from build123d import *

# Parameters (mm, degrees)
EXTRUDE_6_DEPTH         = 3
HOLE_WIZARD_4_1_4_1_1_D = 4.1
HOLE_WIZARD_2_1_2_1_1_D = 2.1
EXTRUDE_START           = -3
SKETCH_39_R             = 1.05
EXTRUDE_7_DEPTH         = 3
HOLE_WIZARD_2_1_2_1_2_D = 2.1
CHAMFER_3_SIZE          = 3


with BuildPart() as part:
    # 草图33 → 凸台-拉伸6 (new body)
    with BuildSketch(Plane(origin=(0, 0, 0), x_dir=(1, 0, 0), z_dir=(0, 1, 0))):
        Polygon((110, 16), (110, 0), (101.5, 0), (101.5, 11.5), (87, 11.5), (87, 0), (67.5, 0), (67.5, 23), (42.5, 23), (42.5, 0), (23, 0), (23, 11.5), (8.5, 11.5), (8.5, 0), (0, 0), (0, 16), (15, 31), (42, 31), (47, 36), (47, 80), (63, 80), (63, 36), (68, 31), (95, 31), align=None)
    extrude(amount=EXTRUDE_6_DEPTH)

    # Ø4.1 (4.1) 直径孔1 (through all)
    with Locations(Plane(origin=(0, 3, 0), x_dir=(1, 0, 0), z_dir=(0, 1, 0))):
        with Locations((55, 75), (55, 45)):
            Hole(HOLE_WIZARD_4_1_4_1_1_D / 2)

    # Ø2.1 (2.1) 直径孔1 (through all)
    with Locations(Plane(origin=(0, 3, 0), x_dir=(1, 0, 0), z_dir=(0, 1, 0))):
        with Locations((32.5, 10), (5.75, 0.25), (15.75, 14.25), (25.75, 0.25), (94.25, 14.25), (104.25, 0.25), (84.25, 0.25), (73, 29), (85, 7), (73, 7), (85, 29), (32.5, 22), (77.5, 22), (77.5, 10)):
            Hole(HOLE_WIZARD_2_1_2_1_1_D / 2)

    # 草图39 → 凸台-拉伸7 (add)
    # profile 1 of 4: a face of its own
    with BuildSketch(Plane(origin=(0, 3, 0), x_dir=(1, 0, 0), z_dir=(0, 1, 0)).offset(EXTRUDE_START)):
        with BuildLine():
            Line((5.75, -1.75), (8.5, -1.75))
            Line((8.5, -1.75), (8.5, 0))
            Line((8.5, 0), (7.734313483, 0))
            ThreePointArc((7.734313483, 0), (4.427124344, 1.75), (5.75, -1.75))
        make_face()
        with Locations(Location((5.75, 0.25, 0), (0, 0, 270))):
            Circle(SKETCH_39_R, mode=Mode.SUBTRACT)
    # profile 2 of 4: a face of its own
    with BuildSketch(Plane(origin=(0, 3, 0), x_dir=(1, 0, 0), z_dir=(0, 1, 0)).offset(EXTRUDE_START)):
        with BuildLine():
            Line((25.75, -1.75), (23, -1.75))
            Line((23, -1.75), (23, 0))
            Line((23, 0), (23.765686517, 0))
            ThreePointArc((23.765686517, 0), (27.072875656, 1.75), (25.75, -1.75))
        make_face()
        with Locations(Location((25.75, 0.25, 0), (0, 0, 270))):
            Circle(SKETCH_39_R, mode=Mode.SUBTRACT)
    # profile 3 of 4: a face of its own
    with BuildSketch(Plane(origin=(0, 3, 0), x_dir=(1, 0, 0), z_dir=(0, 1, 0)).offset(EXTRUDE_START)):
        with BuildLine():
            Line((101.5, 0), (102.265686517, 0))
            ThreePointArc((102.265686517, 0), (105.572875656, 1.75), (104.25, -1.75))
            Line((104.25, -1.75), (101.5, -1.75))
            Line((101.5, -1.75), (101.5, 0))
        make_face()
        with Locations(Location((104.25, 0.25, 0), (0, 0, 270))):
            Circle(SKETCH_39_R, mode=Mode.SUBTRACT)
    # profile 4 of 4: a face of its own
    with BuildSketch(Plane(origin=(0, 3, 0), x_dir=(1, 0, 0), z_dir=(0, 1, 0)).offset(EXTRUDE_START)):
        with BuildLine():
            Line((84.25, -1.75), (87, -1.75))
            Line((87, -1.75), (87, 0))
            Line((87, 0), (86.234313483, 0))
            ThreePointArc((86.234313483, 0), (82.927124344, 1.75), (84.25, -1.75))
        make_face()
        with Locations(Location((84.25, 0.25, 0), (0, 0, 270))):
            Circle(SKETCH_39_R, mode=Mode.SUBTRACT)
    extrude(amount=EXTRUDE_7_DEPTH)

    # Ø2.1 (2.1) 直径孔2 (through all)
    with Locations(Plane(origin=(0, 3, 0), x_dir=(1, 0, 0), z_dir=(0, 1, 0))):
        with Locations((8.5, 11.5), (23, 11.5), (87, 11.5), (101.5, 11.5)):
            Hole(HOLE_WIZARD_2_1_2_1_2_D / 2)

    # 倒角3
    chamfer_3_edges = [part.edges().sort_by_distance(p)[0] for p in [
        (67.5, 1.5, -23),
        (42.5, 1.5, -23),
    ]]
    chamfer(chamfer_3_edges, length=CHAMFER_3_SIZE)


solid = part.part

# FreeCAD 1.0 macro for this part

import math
import FreeCAD as App
import Part
import Sketcher


def edges_at(feature, points):
    """Names of the edges that pass closest to the given points."""
    edges = feature.Shape.Edges
    near = lambda p: min(range(len(edges)), key=lambda i: edges[i].distToShape(Part.Vertex(*p))[0])
    return sorted({f"Edge{near(p) + 1}" for p in points})

doc = App.newDocument("Part")
body = doc.addObject("PartDesign::Body", "Body")

# Sketch on XZ plane
sketch1 = body.newObject("Sketcher::SketchObject", "Sketch")
sketch1.AttachmentSupport = (doc.getObject("XZ_Plane"), [""])
sketch1.MapMode = "FlatFace"
sketch1.addGeometry(Part.LineSegment(App.Vector(110, 0, 0), App.Vector(110, -16, 0)), False)
sketch1.addGeometry(Part.LineSegment(App.Vector(110, -16, 0), App.Vector(95, -31, 0)), False)
sketch1.addGeometry(Part.LineSegment(App.Vector(95, -31, 0), App.Vector(68, -31, 0)), False)
sketch1.addGeometry(Part.LineSegment(App.Vector(68, -31, 0), App.Vector(63, -36, 0)), False)
sketch1.addGeometry(Part.LineSegment(App.Vector(63, -36, 0), App.Vector(63, -80, 0)), False)
sketch1.addGeometry(Part.LineSegment(App.Vector(63, -80, 0), App.Vector(47, -80, 0)), False)
sketch1.addGeometry(Part.LineSegment(App.Vector(47, -80, 0), App.Vector(47, -36, 0)), False)
sketch1.addGeometry(Part.LineSegment(App.Vector(47, -36, 0), App.Vector(42, -31, 0)), False)
sketch1.addGeometry(Part.LineSegment(App.Vector(42, -31, 0), App.Vector(15, -31, 0)), False)
sketch1.addGeometry(Part.LineSegment(App.Vector(15, -31, 0), App.Vector(0, -16, 0)), False)
sketch1.addGeometry(Part.LineSegment(App.Vector(0, -16, 0), App.Vector(0, 0, 0)), False)
sketch1.addGeometry(Part.LineSegment(App.Vector(0, 0, 0), App.Vector(8.5, 0, 0)), False)
sketch1.addGeometry(Part.LineSegment(App.Vector(8.5, 0, 0), App.Vector(8.5, -11.5, 0)), False)
sketch1.addGeometry(Part.LineSegment(App.Vector(8.5, -11.5, 0), App.Vector(23, -11.5, 0)), False)
sketch1.addGeometry(Part.LineSegment(App.Vector(23, -11.5, 0), App.Vector(23, 0, 0)), False)
sketch1.addGeometry(Part.LineSegment(App.Vector(23, 0, 0), App.Vector(42.5, 0, 0)), False)
sketch1.addGeometry(Part.LineSegment(App.Vector(42.5, 0, 0), App.Vector(42.5, -23, 0)), False)
sketch1.addGeometry(Part.LineSegment(App.Vector(42.5, -23, 0), App.Vector(67.5, -23, 0)), False)
sketch1.addGeometry(Part.LineSegment(App.Vector(67.5, -23, 0), App.Vector(67.5, 0, 0)), False)
sketch1.addGeometry(Part.LineSegment(App.Vector(67.5, 0, 0), App.Vector(87, 0, 0)), False)
sketch1.addGeometry(Part.LineSegment(App.Vector(87, 0, 0), App.Vector(87, -11.5, 0)), False)
sketch1.addGeometry(Part.LineSegment(App.Vector(87, -11.5, 0), App.Vector(101.5, -11.5, 0)), False)
sketch1.addGeometry(Part.LineSegment(App.Vector(101.5, -11.5, 0), App.Vector(101.5, 0, 0)), False)
sketch1.addGeometry(Part.LineSegment(App.Vector(101.5, 0, 0), App.Vector(110, 0, 0)), False)
sketch1.addConstraint(Sketcher.Constraint("Coincident", 0, 2, 1, 1))
sketch1.addConstraint(Sketcher.Constraint("Coincident", 1, 2, 2, 1))
sketch1.addConstraint(Sketcher.Constraint("Coincident", 2, 2, 3, 1))
sketch1.addConstraint(Sketcher.Constraint("Coincident", 3, 2, 4, 1))
sketch1.addConstraint(Sketcher.Constraint("Coincident", 4, 2, 5, 1))
sketch1.addConstraint(Sketcher.Constraint("Coincident", 5, 2, 6, 1))
sketch1.addConstraint(Sketcher.Constraint("Coincident", 6, 2, 7, 1))
sketch1.addConstraint(Sketcher.Constraint("Coincident", 7, 2, 8, 1))
sketch1.addConstraint(Sketcher.Constraint("Coincident", 8, 2, 9, 1))
sketch1.addConstraint(Sketcher.Constraint("Coincident", 9, 2, 10, 1))
sketch1.addConstraint(Sketcher.Constraint("Coincident", 10, 2, 11, 1))
sketch1.addConstraint(Sketcher.Constraint("Coincident", 11, 2, 12, 1))
sketch1.addConstraint(Sketcher.Constraint("Coincident", 12, 2, 13, 1))
sketch1.addConstraint(Sketcher.Constraint("Coincident", 13, 2, 14, 1))
sketch1.addConstraint(Sketcher.Constraint("Coincident", 14, 2, 15, 1))
sketch1.addConstraint(Sketcher.Constraint("Coincident", 15, 2, 16, 1))
sketch1.addConstraint(Sketcher.Constraint("Coincident", 16, 2, 17, 1))
sketch1.addConstraint(Sketcher.Constraint("Coincident", 17, 2, 18, 1))
sketch1.addConstraint(Sketcher.Constraint("Coincident", 18, 2, 19, 1))
sketch1.addConstraint(Sketcher.Constraint("Coincident", 19, 2, 20, 1))
sketch1.addConstraint(Sketcher.Constraint("Coincident", 20, 2, 21, 1))
sketch1.addConstraint(Sketcher.Constraint("Coincident", 21, 2, 22, 1))
sketch1.addConstraint(Sketcher.Constraint("Coincident", 22, 2, 23, 1))
sketch1.addConstraint(Sketcher.Constraint("Coincident", 23, 2, 0, 1))
sketch1.addConstraint(Sketcher.Constraint("Vertical", 0))
sketch1.addConstraint(Sketcher.Constraint("Horizontal", 2))
sketch1.addConstraint(Sketcher.Constraint("Vertical", 4))
sketch1.addConstraint(Sketcher.Constraint("Horizontal", 5))
sketch1.addConstraint(Sketcher.Constraint("Vertical", 6))
sketch1.addConstraint(Sketcher.Constraint("Horizontal", 8))
sketch1.addConstraint(Sketcher.Constraint("Vertical", 10))
sketch1.addConstraint(Sketcher.Constraint("Horizontal", 11))
sketch1.addConstraint(Sketcher.Constraint("Vertical", 12))
sketch1.addConstraint(Sketcher.Constraint("Horizontal", 13))
sketch1.addConstraint(Sketcher.Constraint("Vertical", 14))
sketch1.addConstraint(Sketcher.Constraint("Horizontal", 15))
sketch1.addConstraint(Sketcher.Constraint("Vertical", 16))
sketch1.addConstraint(Sketcher.Constraint("Horizontal", 17))
sketch1.addConstraint(Sketcher.Constraint("Vertical", 18))
sketch1.addConstraint(Sketcher.Constraint("Horizontal", 19))
sketch1.addConstraint(Sketcher.Constraint("Vertical", 20))
sketch1.addConstraint(Sketcher.Constraint("Horizontal", 21))
sketch1.addConstraint(Sketcher.Constraint("Vertical", 22))
sketch1.addConstraint(Sketcher.Constraint("Horizontal", 23))
sketch1.addConstraint(Sketcher.Constraint("Coincident", 10, 2, -1, 1))
sketch1.addConstraint(Sketcher.Constraint("PointOnObject", 14, 2, -1))
sketch1.addConstraint(Sketcher.Constraint("PointOnObject", 18, 2, -1))
sketch1.addConstraint(Sketcher.Constraint("PointOnObject", 22, 2, -1))
sketch1.addConstraint(Sketcher.Constraint("Parallel", 1, 3))
sketch1.addConstraint(Sketcher.Constraint("Perpendicular", 3, 7))
sketch1.addConstraint(Sketcher.Constraint("Parallel", 7, 9))
sketch1.addConstraint(Sketcher.Constraint("Horizontal", 3, 2, 6, 2))
sketch1.addConstraint(Sketcher.Constraint("Horizontal", 2, 2, 7, 2))
sketch1.addConstraint(Sketcher.Constraint("Horizontal", 0, 2, 9, 2))
sketch1.addConstraint(Sketcher.Constraint("Horizontal", 13, 2, 20, 2))
sketch1.addConstraint(Sketcher.Constraint("Equal", 2, 8))
sketch1.addConstraint(Sketcher.Constraint("Equal", 15, 19))
sketch1.addConstraint(Sketcher.Constraint("Equal", 13, 21))
sketch1.addConstraint(Sketcher.Constraint("Equal", 11, 23))
sketch1.addConstraint(Sketcher.Constraint("Equal", 5, 0))
sketch1.addConstraint(Sketcher.Constraint("Equal", 3, 7))
sketch1.addConstraint(Sketcher.Constraint("DistanceX", 2, 2, 2, 1, 27.0))
sketch1.addConstraint(Sketcher.Constraint("DistanceX", 5, 2, 5, 1, 16.0))
sketch1.addConstraint(Sketcher.Constraint("DistanceX", 17, 1, 17, 2, 25.0))
sketch1.addConstraint(Sketcher.Constraint("DistanceY", 4, 2, 4, 1, 44.0))
sketch1.addConstraint(Sketcher.Constraint("DistanceY", 16, 2, 16, 1, 23.0))
sketch1.addConstraint(Sketcher.Constraint("DistanceX", 11, 1, 11, 2, 8.5))
sketch1.addConstraint(Sketcher.Constraint("DistanceX", 13, 1, 13, 2, 14.5))
sketch1.addConstraint(Sketcher.Constraint("DistanceX", 15, 1, 15, 2, 19.5))
sketch1.addConstraint(Sketcher.Constraint("DistanceY", 12, 2, 12, 1, 11.5))
sketch1.addConstraint(Sketcher.Constraint("DistanceX", -1, 1, 1, 2, 95.0))
pad1 = body.newObject("PartDesign::Pad", "Pad")
pad1.Profile = sketch1
pad1.Length = 3
pad1.Reversed = True

# Sketch on XZ plane
sketch2 = body.newObject("Sketcher::SketchObject", "Sketch001")
sketch2.AttachmentSupport = (doc.getObject("XZ_Plane"), [""])
sketch2.MapMode = "FlatFace"
sketch2.AttachmentOffset = App.Placement(App.Vector(0, 0, -3), App.Rotation())
sketch2.addGeometry(Part.Circle(App.Vector(55, -75, 0), App.Vector(0, 0, 1), 2.05), False)
sketch2.addGeometry(Part.Circle(App.Vector(55, -45, 0), App.Vector(0, 0, 1), 2.05), False)
sketch2.addConstraint(Sketcher.Constraint("Equal", 0, 1))
sketch2.addConstraint(Sketcher.Constraint("Vertical", 0, 3, 1, 3))
sketch2.addConstraint(Sketcher.Constraint("Diameter", 0, 4.1))
sketch2.addConstraint(Sketcher.Constraint("DistanceX", -1, 1, 0, 3, 55.0))
sketch2.addConstraint(Sketcher.Constraint("DistanceY", 0, 3, -1, 1, 75.0))
sketch2.addConstraint(Sketcher.Constraint("DistanceY", 1, 3, -1, 1, 45.0))
doc.recompute()
hole = body.newObject("PartDesign::Hole", "Hole")
hole.Profile = sketch2
hole.ThreadType = "None"
hole.Diameter = 4.1
hole.DepthType = "ThroughAll"
hole.Reversed = True

# Sketch on XZ plane
sketch3 = body.newObject("Sketcher::SketchObject", "Sketch002")
sketch3.AttachmentSupport = (doc.getObject("XZ_Plane"), [""])
sketch3.MapMode = "FlatFace"
sketch3.AttachmentOffset = App.Placement(App.Vector(0, 0, -3), App.Rotation())
sketch3.addGeometry(Part.Circle(App.Vector(32.5, -10, 0), App.Vector(0, 0, 1), 1.05), False)
sketch3.addGeometry(Part.Circle(App.Vector(5.75, -0.25, 0), App.Vector(0, 0, 1), 1.05), False)
sketch3.addGeometry(Part.Circle(App.Vector(15.75, -14.25, 0), App.Vector(0, 0, 1), 1.05), False)
sketch3.addGeometry(Part.Circle(App.Vector(25.75, -0.25, 0), App.Vector(0, 0, 1), 1.05), False)
sketch3.addGeometry(Part.Circle(App.Vector(94.25, -14.25, 0), App.Vector(0, 0, 1), 1.05), False)
sketch3.addGeometry(Part.Circle(App.Vector(104.25, -0.25, 0), App.Vector(0, 0, 1), 1.05), False)
sketch3.addGeometry(Part.Circle(App.Vector(84.25, -0.25, 0), App.Vector(0, 0, 1), 1.05), False)
sketch3.addGeometry(Part.Circle(App.Vector(73, -29, 0), App.Vector(0, 0, 1), 1.05), False)
sketch3.addGeometry(Part.Circle(App.Vector(85, -7, 0), App.Vector(0, 0, 1), 1.05), False)
sketch3.addGeometry(Part.Circle(App.Vector(73, -7, 0), App.Vector(0, 0, 1), 1.05), False)
sketch3.addGeometry(Part.Circle(App.Vector(85, -29, 0), App.Vector(0, 0, 1), 1.05), False)
sketch3.addGeometry(Part.Circle(App.Vector(32.5, -22, 0), App.Vector(0, 0, 1), 1.05), False)
sketch3.addGeometry(Part.Circle(App.Vector(77.5, -22, 0), App.Vector(0, 0, 1), 1.05), False)
sketch3.addGeometry(Part.Circle(App.Vector(77.5, -10, 0), App.Vector(0, 0, 1), 1.05), False)
sketch3.addConstraint(Sketcher.Constraint("Equal", 0, 1))
sketch3.addConstraint(Sketcher.Constraint("Equal", 1, 2))
sketch3.addConstraint(Sketcher.Constraint("Equal", 2, 3))
sketch3.addConstraint(Sketcher.Constraint("Equal", 3, 4))
sketch3.addConstraint(Sketcher.Constraint("Equal", 4, 5))
sketch3.addConstraint(Sketcher.Constraint("Equal", 5, 6))
sketch3.addConstraint(Sketcher.Constraint("Equal", 6, 7))
sketch3.addConstraint(Sketcher.Constraint("Equal", 7, 8))
sketch3.addConstraint(Sketcher.Constraint("Equal", 8, 9))
sketch3.addConstraint(Sketcher.Constraint("Equal", 9, 10))
sketch3.addConstraint(Sketcher.Constraint("Equal", 10, 11))
sketch3.addConstraint(Sketcher.Constraint("Equal", 11, 12))
sketch3.addConstraint(Sketcher.Constraint("Equal", 12, 13))
sketch3.addConstraint(Sketcher.Constraint("Horizontal", 1, 3, 3, 3))
sketch3.addConstraint(Sketcher.Constraint("Horizontal", 2, 3, 4, 3))
sketch3.addConstraint(Sketcher.Constraint("Horizontal", 3, 3, 5, 3))
sketch3.addConstraint(Sketcher.Constraint("Horizontal", 5, 3, 6, 3))
sketch3.addConstraint(Sketcher.Constraint("Horizontal", 8, 3, 9, 3))
sketch3.addConstraint(Sketcher.Constraint("Horizontal", 7, 3, 10, 3))
sketch3.addConstraint(Sketcher.Constraint("Horizontal", 11, 3, 12, 3))
sketch3.addConstraint(Sketcher.Constraint("Horizontal", 0, 3, 13, 3))
sketch3.addConstraint(Sketcher.Constraint("Vertical", 7, 3, 9, 3))
sketch3.addConstraint(Sketcher.Constraint("Vertical", 8, 3, 10, 3))
sketch3.addConstraint(Sketcher.Constraint("Vertical", 0, 3, 11, 3))
sketch3.addConstraint(Sketcher.Constraint("Vertical", 12, 3, 13, 3))
sketch3.addConstraint(Sketcher.Constraint("Diameter", 0, 2.1))
sketch3.addConstraint(Sketcher.Constraint("DistanceY", 0, 3, -1, 1, 10.0))
sketch3.addConstraint(Sketcher.Constraint("DistanceX", -1, 1, 7, 3, 73.0))
sketch3.addConstraint(Sketcher.Constraint("DistanceY", 7, 3, -1, 1, 29.0))
sketch3.addConstraint(Sketcher.Constraint("DistanceX", -1, 1, 8, 3, 85.0))
sketch3.addConstraint(Sketcher.Constraint("DistanceY", 8, 3, -1, 1, 7.0))
sketch3.addConstraint(Sketcher.Constraint("DistanceY", 11, 3, -1, 1, 22.0))
sketch3.addConstraint(Sketcher.Constraint("DistanceX", 1, 3, 2, 3, 10.0))
sketch3.addConstraint(Sketcher.Constraint("DistanceY", 2, 3, 1, 3, 14.0))
sketch3.addConstraint(Sketcher.Constraint("DistanceX", 2, 3, 3, 3, 10.0))
sketch3.addConstraint(Sketcher.Constraint("DistanceX", 4, 3, 5, 3, 10.0))
sketch3.addConstraint(Sketcher.Constraint("DistanceX", 6, 3, 4, 3, 10.0))
sketch3.addConstraint(Sketcher.Constraint("DistanceX", -1, 1, 0, 3, 32.5))
sketch3.addConstraint(Sketcher.Constraint("DistanceX", -1, 1, 12, 3, 77.5))
sketch3.addConstraint(Sketcher.Constraint("DistanceX", 3, 3, 4, 3, 68.5))
sketch3.addConstraint(Sketcher.Constraint("DistanceX", -1, 1, 1, 3, 5.75))
sketch3.addConstraint(Sketcher.Constraint("DistanceY", 1, 3, -1, 1, 0.25))
doc.recompute()
hole2 = body.newObject("PartDesign::Hole", "Hole001")
hole2.Profile = sketch3
hole2.ThreadType = "None"
hole2.Diameter = 2.1
hole2.DepthType = "ThroughAll"
hole2.Reversed = True

# Sketch on XZ plane
sketch4 = body.newObject("Sketcher::SketchObject", "Sketch003")
sketch4.AttachmentSupport = (doc.getObject("XZ_Plane"), [""])
sketch4.MapMode = "FlatFace"
sketch4.addGeometry(Part.LineSegment(App.Vector(5.75, 1.75, 0), App.Vector(8.5, 1.75, 0)), False)
sketch4.addGeometry(Part.LineSegment(App.Vector(8.5, 1.75, 0), App.Vector(8.5, 0, 0)), False)
sketch4.addGeometry(Part.LineSegment(App.Vector(8.5, 0, 0), App.Vector(7.734313, 0, 0)), False)
sketch4.addGeometry(Part.ArcOfCircle(Part.Circle(App.Vector(5.75, -0.25, 0), App.Vector(0, 0, 1), 2), math.radians(90), math.radians(367.180756)), False)
sketch4.addGeometry(Part.Circle(App.Vector(5.75, -0.25, 0), App.Vector(0, 0, 1), 1.05), False)
sketch4.addGeometry(Part.LineSegment(App.Vector(23, 1.75, 0), App.Vector(25.75, 1.75, 0)), False)
sketch4.addGeometry(Part.ArcOfCircle(Part.Circle(App.Vector(25.75, -0.25, 0), App.Vector(0, 0, 1), 2), math.radians(172.819244), math.radians(450)), False)
sketch4.addGeometry(Part.LineSegment(App.Vector(23.765687, 0, 0), App.Vector(23, 0, 0)), False)
sketch4.addGeometry(Part.LineSegment(App.Vector(23, 0, 0), App.Vector(23, 1.75, 0)), False)
sketch4.addGeometry(Part.Circle(App.Vector(25.75, -0.25, 0), App.Vector(0, 0, 1), 1.05), False)
sketch4.addGeometry(Part.LineSegment(App.Vector(102.265687, 0, 0), App.Vector(101.5, 0, 0)), False)
sketch4.addGeometry(Part.LineSegment(App.Vector(101.5, 0, 0), App.Vector(101.5, 1.75, 0)), False)
sketch4.addGeometry(Part.LineSegment(App.Vector(101.5, 1.75, 0), App.Vector(104.25, 1.75, 0)), False)
sketch4.addGeometry(Part.ArcOfCircle(Part.Circle(App.Vector(104.25, -0.25, 0), App.Vector(0, 0, 1), 2), math.radians(172.819244), math.radians(450)), False)
sketch4.addGeometry(Part.Circle(App.Vector(104.25, -0.25, 0), App.Vector(0, 0, 1), 1.05), False)
sketch4.addGeometry(Part.LineSegment(App.Vector(84.25, 1.75, 0), App.Vector(87, 1.75, 0)), False)
sketch4.addGeometry(Part.LineSegment(App.Vector(87, 1.75, 0), App.Vector(87, 0, 0)), False)
sketch4.addGeometry(Part.LineSegment(App.Vector(87, 0, 0), App.Vector(86.234313, 0, 0)), False)
sketch4.addGeometry(Part.ArcOfCircle(Part.Circle(App.Vector(84.25, -0.25, 0), App.Vector(0, 0, 1), 2), math.radians(90), math.radians(367.180756)), False)
sketch4.addGeometry(Part.Circle(App.Vector(84.25, -0.25, 0), App.Vector(0, 0, 1), 1.05), False)
sketch4.addConstraint(Sketcher.Constraint("Coincident", 0, 2, 1, 1))
sketch4.addConstraint(Sketcher.Constraint("Coincident", 1, 2, 2, 1))
sketch4.addConstraint(Sketcher.Constraint("Coincident", 2, 2, 3, 2))
sketch4.addConstraint(Sketcher.Constraint("Tangent", 3, 1, 0, 1))
sketch4.addConstraint(Sketcher.Constraint("Tangent", 5, 2, 6, 2))
sketch4.addConstraint(Sketcher.Constraint("Coincident", 6, 1, 7, 1))
sketch4.addConstraint(Sketcher.Constraint("Coincident", 7, 2, 8, 1))
sketch4.addConstraint(Sketcher.Constraint("Coincident", 8, 2, 5, 1))
sketch4.addConstraint(Sketcher.Constraint("Coincident", 10, 2, 11, 1))
sketch4.addConstraint(Sketcher.Constraint("Coincident", 11, 2, 12, 1))
sketch4.addConstraint(Sketcher.Constraint("Tangent", 12, 2, 13, 2))
sketch4.addConstraint(Sketcher.Constraint("Coincident", 13, 1, 10, 1))
sketch4.addConstraint(Sketcher.Constraint("Coincident", 15, 2, 16, 1))
sketch4.addConstraint(Sketcher.Constraint("Coincident", 16, 2, 17, 1))
sketch4.addConstraint(Sketcher.Constraint("Coincident", 17, 2, 18, 2))
sketch4.addConstraint(Sketcher.Constraint("Tangent", 18, 1, 15, 1))
sketch4.addConstraint(Sketcher.Constraint("Horizontal", 0))
sketch4.addConstraint(Sketcher.Constraint("Vertical", 1))
sketch4.addConstraint(Sketcher.Constraint("Horizontal", 2))
sketch4.addConstraint(Sketcher.Constraint("Horizontal", 5))
sketch4.addConstraint(Sketcher.Constraint("Horizontal", 7))
sketch4.addConstraint(Sketcher.Constraint("Vertical", 8))
sketch4.addConstraint(Sketcher.Constraint("Horizontal", 10))
sketch4.addConstraint(Sketcher.Constraint("Vertical", 11))
sketch4.addConstraint(Sketcher.Constraint("Horizontal", 12))
sketch4.addConstraint(Sketcher.Constraint("Horizontal", 15))
sketch4.addConstraint(Sketcher.Constraint("Vertical", 16))
sketch4.addConstraint(Sketcher.Constraint("Horizontal", 17))
sketch4.addConstraint(Sketcher.Constraint("Coincident", 4, 3, 3, 3))
sketch4.addConstraint(Sketcher.Constraint("Coincident", 9, 3, 6, 3))
sketch4.addConstraint(Sketcher.Constraint("Coincident", 14, 3, 13, 3))
sketch4.addConstraint(Sketcher.Constraint("Coincident", 19, 3, 18, 3))
sketch4.addConstraint(Sketcher.Constraint("Equal", 3, 6))
sketch4.addConstraint(Sketcher.Constraint("Equal", 4, 9))
sketch4.addConstraint(Sketcher.Constraint("Equal", 6, 13))
sketch4.addConstraint(Sketcher.Constraint("Equal", 9, 14))
sketch4.addConstraint(Sketcher.Constraint("Equal", 13, 18))
sketch4.addConstraint(Sketcher.Constraint("Equal", 14, 19))
sketch4.addConstraint(Sketcher.Constraint("PointOnObject", 1, 2, -1))
sketch4.addConstraint(Sketcher.Constraint("PointOnObject", 6, 1, -1))
sketch4.addConstraint(Sketcher.Constraint("PointOnObject", 10, 2, -1))
sketch4.addConstraint(Sketcher.Constraint("PointOnObject", 16, 2, -1))
sketch4.addConstraint(Sketcher.Constraint("Horizontal", 4, 3, 6, 3))
sketch4.addConstraint(Sketcher.Constraint("Horizontal", 9, 3, 13, 3))
sketch4.addConstraint(Sketcher.Constraint("Horizontal", 14, 3, 18, 3))
sketch4.addConstraint(Sketcher.Constraint("Equal", 0, 5))
sketch4.addConstraint(Sketcher.Constraint("Equal", 7, 10))
sketch4.addConstraint(Sketcher.Constraint("Equal", 12, 15))
sketch4.addConstraint(Sketcher.Constraint("Radius", 3, 2.0))
sketch4.addConstraint(Sketcher.Constraint("Diameter", 4, 2.1))
sketch4.addConstraint(Sketcher.Constraint("DistanceX", -1, 1, 7, 2, 23.0))
sketch4.addConstraint(Sketcher.Constraint("DistanceX", -1, 1, 15, 2, 87.0))
sketch4.addConstraint(Sketcher.Constraint("DistanceX", 3, 3, 6, 3, 20.0))
sketch4.addConstraint(Sketcher.Constraint("DistanceX", 18, 3, 13, 3, 20.0))
sketch4.addConstraint(Sketcher.Constraint("DistanceX", 0, 1, 0, 2, 2.75))
sketch4.addConstraint(Sketcher.Constraint("DistanceY", 1, 2, 1, 1, 1.75))
pad2 = body.newObject("PartDesign::Pad", "Pad001")
pad2.Profile = sketch4
pad2.Length = 3
pad2.Reversed = True

# Sketch on XZ plane
sketch5 = body.newObject("Sketcher::SketchObject", "Sketch004")
sketch5.AttachmentSupport = (doc.getObject("XZ_Plane"), [""])
sketch5.MapMode = "FlatFace"
sketch5.AttachmentOffset = App.Placement(App.Vector(0, 0, -3), App.Rotation())
sketch5.addGeometry(Part.Circle(App.Vector(8.5, -11.5, 0), App.Vector(0, 0, 1), 1.05), False)
sketch5.addGeometry(Part.Circle(App.Vector(23, -11.5, 0), App.Vector(0, 0, 1), 1.05), False)
sketch5.addGeometry(Part.Circle(App.Vector(87, -11.5, 0), App.Vector(0, 0, 1), 1.05), False)
sketch5.addGeometry(Part.Circle(App.Vector(101.5, -11.5, 0), App.Vector(0, 0, 1), 1.05), False)
sketch5.addConstraint(Sketcher.Constraint("Equal", 0, 1))
sketch5.addConstraint(Sketcher.Constraint("Equal", 1, 2))
sketch5.addConstraint(Sketcher.Constraint("Equal", 2, 3))
sketch5.addConstraint(Sketcher.Constraint("Horizontal", 0, 3, 1, 3))
sketch5.addConstraint(Sketcher.Constraint("Horizontal", 1, 3, 2, 3))
sketch5.addConstraint(Sketcher.Constraint("Horizontal", 2, 3, 3, 3))
sketch5.addConstraint(Sketcher.Constraint("Diameter", 0, 2.1))
sketch5.addConstraint(Sketcher.Constraint("DistanceX", -1, 1, 1, 3, 23.0))
sketch5.addConstraint(Sketcher.Constraint("DistanceX", -1, 1, 2, 3, 87.0))
sketch5.addConstraint(Sketcher.Constraint("DistanceX", 0, 3, 3, 3, 93.0))
sketch5.addConstraint(Sketcher.Constraint("DistanceX", -1, 1, 0, 3, 8.5))
sketch5.addConstraint(Sketcher.Constraint("DistanceY", 0, 3, -1, 1, 11.5))
doc.recompute()
hole3 = body.newObject("PartDesign::Hole", "Hole002")
hole3.Profile = sketch5
hole3.ThreadType = "None"
hole3.Diameter = 2.1
hole3.DepthType = "ThroughAll"
hole3.Reversed = True
doc.recompute()

chamfer = body.newObject("PartDesign::Chamfer", "Chamfer")
chamfer.Base = (hole3, edges_at(hole3, [(67.5, 1.5, -23), (42.5, 1.5, -23)]))
chamfer.Size = 3

doc.recompute()
